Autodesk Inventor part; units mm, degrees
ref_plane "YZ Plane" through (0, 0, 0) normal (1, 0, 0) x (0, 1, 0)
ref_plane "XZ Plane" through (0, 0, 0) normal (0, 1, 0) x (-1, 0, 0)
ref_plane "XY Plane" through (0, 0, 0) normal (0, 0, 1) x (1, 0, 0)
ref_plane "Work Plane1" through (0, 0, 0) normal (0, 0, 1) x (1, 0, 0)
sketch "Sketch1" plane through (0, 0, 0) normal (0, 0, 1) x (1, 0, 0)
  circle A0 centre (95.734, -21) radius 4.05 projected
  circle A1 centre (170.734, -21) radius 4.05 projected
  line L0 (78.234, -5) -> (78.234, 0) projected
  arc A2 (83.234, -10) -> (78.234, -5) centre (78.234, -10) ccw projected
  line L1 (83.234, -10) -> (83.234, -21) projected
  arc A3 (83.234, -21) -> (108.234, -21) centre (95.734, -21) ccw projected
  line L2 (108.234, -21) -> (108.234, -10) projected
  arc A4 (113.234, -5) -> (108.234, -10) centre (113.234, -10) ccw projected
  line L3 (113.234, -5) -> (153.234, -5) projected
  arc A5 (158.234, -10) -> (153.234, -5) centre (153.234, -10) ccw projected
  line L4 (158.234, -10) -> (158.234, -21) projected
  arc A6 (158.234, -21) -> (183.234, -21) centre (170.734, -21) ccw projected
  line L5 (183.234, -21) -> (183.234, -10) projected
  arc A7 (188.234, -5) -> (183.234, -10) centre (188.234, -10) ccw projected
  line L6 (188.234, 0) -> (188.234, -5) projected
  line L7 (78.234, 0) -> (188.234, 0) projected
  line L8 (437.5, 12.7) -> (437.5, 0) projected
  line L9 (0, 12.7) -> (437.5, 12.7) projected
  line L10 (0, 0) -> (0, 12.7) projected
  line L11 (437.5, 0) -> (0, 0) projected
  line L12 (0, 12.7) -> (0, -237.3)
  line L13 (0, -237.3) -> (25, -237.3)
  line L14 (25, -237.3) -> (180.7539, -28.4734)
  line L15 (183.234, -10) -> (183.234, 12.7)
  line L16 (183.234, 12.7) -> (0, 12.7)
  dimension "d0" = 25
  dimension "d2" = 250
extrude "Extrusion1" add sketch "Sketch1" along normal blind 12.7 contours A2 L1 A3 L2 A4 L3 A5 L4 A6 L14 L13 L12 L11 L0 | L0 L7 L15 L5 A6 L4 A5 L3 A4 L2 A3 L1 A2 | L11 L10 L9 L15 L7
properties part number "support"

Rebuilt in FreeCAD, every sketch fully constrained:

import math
import FreeCAD as App
import Part
import Sketcher
from FreeCAD import Vector
Q = App.Units.Quantity

doc = App.newDocument("Part")
body = doc.addObject("PartDesign::Body", "Body")

sketch1 = body.newObject("Sketcher::SketchObject", "Sketch")
sketch1.AttachmentSupport = (doc.getObject("XY_Plane"), [""])
sketch1.MapMode = "FlatFace"
sketch1.addGeometry([
    Part.LineSegment(Vector(25, -237.3, 0), Vector(180.7539, -28.4734, 0)),
    Part.ArcOfCircle(Part.Circle(Vector(170.734, -21, 0), Vector(0, 0, 1), 12.5), math.radians(-36.717628), math.radians(0)),
    Part.LineSegment(Vector(183.234, -21, 0), Vector(183.234, 12.7, 0)),
    Part.LineSegment(Vector(183.234, 12.7, 0), Vector(0, 12.7, 0)),
    Part.LineSegment(Vector(0, 12.7, 0), Vector(0, -237.3, 0)),
    Part.LineSegment(Vector(0, -237.3, 0), Vector(25, -237.3, 0)),
    Part.Circle(Vector(95.734, -21, 0), Vector(0, 0, 1), 4.05),
    Part.Circle(Vector(170.734, -21, 0), Vector(0, 0, 1), 4.05),
], False)
sketch1.addConstraint([
    Sketcher.Constraint("Tangent", 0, 2, 1, 1),
    Sketcher.Constraint("Tangent", 1, 2, 2, 1),
    Sketcher.Constraint("Coincident", 2, 2, 3, 1),
    Sketcher.Constraint("Coincident", 3, 2, 4, 1),
    Sketcher.Constraint("Coincident", 4, 2, 5, 1),
    Sketcher.Constraint("Coincident", 5, 2, 0, 1),
    Sketcher.Constraint("Vertical", 2),
    Sketcher.Constraint("Horizontal", 3),
    Sketcher.Constraint("Vertical", 4),
    Sketcher.Constraint("Horizontal", 5),
    Sketcher.Constraint("Coincident", 7, 3, 1, 3),
    Sketcher.Constraint("Equal", 6, 7),
    Sketcher.Constraint("PointOnObject", 3, 2, -2),
    Sketcher.Constraint("Horizontal", 1, 3, 6, 3),
    Sketcher.Constraint("Radius", 1, Q("12.5 mm")),
    Sketcher.Constraint("DistanceX", 5, 1, 5, 2, Q("25 mm")),
    Sketcher.Constraint("DistanceY", 4, 2, 4, 1, Q("250 mm")),
    Sketcher.Constraint("Diameter", 6, Q("8.1 mm")),
    Sketcher.Constraint("DistanceY", 2, 1, 2, 2, Q("33.7 mm")),
    Sketcher.Constraint("DistanceY", 1, 3, -1, 1, Q("21 mm")),
    Sketcher.Constraint("DistanceX", 6, 3, 1, 3, Q("75 mm")),
    Sketcher.Constraint("DistanceX", 3, 2, 3, 1, Q("183.234 mm")),
])
pad1 = body.newObject("PartDesign::Pad", "Pad")
pad1.Profile = sketch1
pad1.Length = 12.7

doc.recompute()
